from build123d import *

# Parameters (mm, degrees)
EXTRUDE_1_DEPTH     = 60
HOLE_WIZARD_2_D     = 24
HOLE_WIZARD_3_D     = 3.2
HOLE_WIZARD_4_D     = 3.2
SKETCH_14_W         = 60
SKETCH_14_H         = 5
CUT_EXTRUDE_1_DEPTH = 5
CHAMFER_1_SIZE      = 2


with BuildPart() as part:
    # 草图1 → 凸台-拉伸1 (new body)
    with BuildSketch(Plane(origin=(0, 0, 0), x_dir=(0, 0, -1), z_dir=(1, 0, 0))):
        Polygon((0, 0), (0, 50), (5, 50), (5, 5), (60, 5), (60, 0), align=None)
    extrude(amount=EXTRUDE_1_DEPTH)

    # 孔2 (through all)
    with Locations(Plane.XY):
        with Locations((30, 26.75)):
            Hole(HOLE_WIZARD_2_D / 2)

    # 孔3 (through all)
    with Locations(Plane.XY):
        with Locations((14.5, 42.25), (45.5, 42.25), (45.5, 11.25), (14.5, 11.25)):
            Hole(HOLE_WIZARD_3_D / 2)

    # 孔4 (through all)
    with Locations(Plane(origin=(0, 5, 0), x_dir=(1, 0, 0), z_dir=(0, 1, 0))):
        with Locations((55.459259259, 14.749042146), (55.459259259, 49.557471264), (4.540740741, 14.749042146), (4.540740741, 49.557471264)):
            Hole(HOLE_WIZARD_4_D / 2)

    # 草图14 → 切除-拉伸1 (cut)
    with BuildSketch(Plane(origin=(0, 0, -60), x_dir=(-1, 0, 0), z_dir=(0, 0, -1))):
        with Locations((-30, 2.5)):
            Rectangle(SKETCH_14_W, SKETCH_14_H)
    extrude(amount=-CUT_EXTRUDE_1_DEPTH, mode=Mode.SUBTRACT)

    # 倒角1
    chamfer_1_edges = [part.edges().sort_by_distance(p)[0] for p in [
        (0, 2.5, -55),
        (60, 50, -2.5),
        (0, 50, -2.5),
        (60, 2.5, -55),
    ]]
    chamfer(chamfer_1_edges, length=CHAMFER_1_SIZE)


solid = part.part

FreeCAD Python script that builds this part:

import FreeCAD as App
import Part
import Sketcher
Q = App.Units.Quantity


def edges_at(feature, points):
    """Names of the edges that pass closest to the given points."""
    edges = feature.Shape.Edges
    near = lambda p: min(range(len(edges)), key=lambda i: edges[i].distToShape(Part.Vertex(*p))[0])
    return sorted({f"Edge{near(p) + 1}" for p in points})

doc = App.newDocument("Part")
body = doc.addObject("PartDesign::Body", "Body")

sketch1 = doc.addObject("Sketcher::SketchObject", "Sketch")
body.addObject(sketch1)
sketch1.AttachmentSupport = (doc.YZ_Plane, [""])
sketch1.MapMode = "FlatFace"
sketch1.addGeometry([
    Part.LineSegment(App.Vector(50, 0, 0), App.Vector(0, 0, 0)),
    Part.LineSegment(App.Vector(0, 0, 0), App.Vector(0, -60, 0)),
    Part.LineSegment(App.Vector(0, -60, 0), App.Vector(5, -60, 0)),
    Part.LineSegment(App.Vector(5, -60, 0), App.Vector(5, -5, 0)),
    Part.LineSegment(App.Vector(5, -5, 0), App.Vector(50, -5, 0)),
    Part.LineSegment(App.Vector(50, -5, 0), App.Vector(50, 0, 0)),
], False)
sketch1.addConstraint([
    Sketcher.Constraint("Coincident", 0, 2, 1, 1),
    Sketcher.Constraint("Coincident", 1, 2, 2, 1),
    Sketcher.Constraint("Coincident", 2, 2, 3, 1),
    Sketcher.Constraint("Coincident", 3, 2, 4, 1),
    Sketcher.Constraint("Coincident", 4, 2, 5, 1),
    Sketcher.Constraint("Coincident", 5, 2, 0, 1),
    Sketcher.Constraint("Horizontal", 0),
    Sketcher.Constraint("Vertical", 1),
    Sketcher.Constraint("Horizontal", 2),
    Sketcher.Constraint("Vertical", 3),
    Sketcher.Constraint("Horizontal", 4),
    Sketcher.Constraint("Vertical", 5),
    Sketcher.Constraint("Coincident", 0, 2, -1, 1),
    Sketcher.Constraint("Equal", 2, 5),
    Sketcher.Constraint("DistanceX", 0, 2, 0, 1, Q("50 mm")),
    Sketcher.Constraint("DistanceX", 2, 1, 2, 2, Q("5 mm")),
    Sketcher.Constraint("DistanceY", 1, 2, 1, 1, Q("60 mm")),
])
pad1 = doc.addObject("PartDesign::Pad", "Pad")
body.addObject(pad1)
pad1.Profile = sketch1
pad1.Length = 60

sketch2 = doc.addObject("Sketcher::SketchObject", "Sketch001")
body.addObject(sketch2)
sketch2.AttachmentSupport = (doc.XY_Plane, [""])
sketch2.MapMode = "FlatFace"
sketch2.addGeometry(Part.Circle(App.Vector(30, 27, 0), App.Vector(0, 0, 1), 12), False)
sketch2.addConstraint([
    Sketcher.Constraint("Diameter", 0, Q("24 mm")),
    Sketcher.Constraint("DistanceX", -1, 1, 0, 3, Q("30 mm")),
    Sketcher.Constraint("DistanceY", -1, 1, 0, 3, Q("26.75 mm")),
])
doc.recompute()
hole = doc.addObject("PartDesign::Hole", "Hole")
body.addObject(hole)
hole.Profile = sketch2
hole.ThreadType = "None"
hole.Diameter = 24
hole.DepthType = "ThroughAll"

sketch3 = doc.addObject("Sketcher::SketchObject", "Sketch002")
body.addObject(sketch3)
sketch3.AttachmentSupport = (doc.XY_Plane, [""])
sketch3.MapMode = "FlatFace"
sketch3.addGeometry([
    Part.Circle(App.Vector(14.5, 42.2, 0), App.Vector(0, 0, 1), 1.6),
    Part.Circle(App.Vector(45.5, 42.2, 0), App.Vector(0, 0, 1), 1.6),
    Part.Circle(App.Vector(45.5, 11.2, 0), App.Vector(0, 0, 1), 1.6),
    Part.Circle(App.Vector(14.5, 11.2, 0), App.Vector(0, 0, 1), 1.6),
], False)
sketch3.addConstraint([
    Sketcher.Constraint("Equal", 0, 1),
    Sketcher.Constraint("Equal", 1, 2),
    Sketcher.Constraint("Equal", 2, 3),
    Sketcher.Constraint("Horizontal", 0, 3, 1, 3),
    Sketcher.Constraint("Horizontal", 2, 3, 3, 3),
    Sketcher.Constraint("Vertical", 1, 3, 2, 3),
    Sketcher.Constraint("Vertical", 0, 3, 3, 3),
    Sketcher.Constraint("Diameter", 0, Q("3.2 mm")),
    Sketcher.Constraint("DistanceX", 0, 3, 1, 3, Q("31 mm")),
    Sketcher.Constraint("DistanceY", 2, 3, 1, 3, Q("31 mm")),
    Sketcher.Constraint("DistanceX", -1, 1, 0, 3, Q("14.5 mm")),
    Sketcher.Constraint("DistanceY", -1, 1, 0, 3, Q("42.25 mm")),
])
doc.recompute()
hole2 = doc.addObject("PartDesign::Hole", "Hole001")
body.addObject(hole2)
hole2.Profile = sketch3
hole2.ThreadType = "None"
hole2.Diameter = 3.2
hole2.DepthType = "ThroughAll"

sketch4 = doc.addObject("Sketcher::SketchObject", "Sketch003")
body.addObject(sketch4)
sketch4.AttachmentSupport = (doc.XZ_Plane, [""])
sketch4.MapMode = "FlatFace"
sketch4.AttachmentOffset = App.Placement(App.Vector(0, 0, -5), App.Rotation())
sketch4.addGeometry([
    Part.Circle(App.Vector(55.5, -14.7, 0), App.Vector(0, 0, 1), 1.6),
    Part.Circle(App.Vector(55.5, -49.6, 0), App.Vector(0, 0, 1), 1.6),
    Part.Circle(App.Vector(4.5, -14.7, 0), App.Vector(0, 0, 1), 1.6),
    Part.Circle(App.Vector(4.5, -49.6, 0), App.Vector(0, 0, 1), 1.6),
], False)
sketch4.addConstraint([
    Sketcher.Constraint("Equal", 0, 1),
    Sketcher.Constraint("Equal", 1, 2),
    Sketcher.Constraint("Equal", 2, 3),
    Sketcher.Constraint("Horizontal", 0, 3, 2, 3),
    Sketcher.Constraint("Horizontal", 1, 3, 3, 3),
    Sketcher.Constraint("Vertical", 0, 3, 1, 3),
    Sketcher.Constraint("Vertical", 2, 3, 3, 3),
    Sketcher.Constraint("Diameter", 0, Q("3.2 mm")),
    Sketcher.Constraint("DistanceX", -1, 1, 0, 3, Q("55.459259 mm")),
    Sketcher.Constraint("DistanceY", 1, 3, -1, 1, Q("49.557471 mm")),
    Sketcher.Constraint("DistanceX", -1, 1, 2, 3, Q("4.540741 mm")),
    Sketcher.Constraint("DistanceY", 1, 3, 0, 3, Q("34.808429 mm")),
])
doc.recompute()
hole3 = doc.addObject("PartDesign::Hole", "Hole002")
body.addObject(hole3)
hole3.Profile = sketch4
hole3.ThreadType = "None"
hole3.Diameter = 3.2
hole3.DepthType = "ThroughAll"
hole3.Reversed = True

sketch5 = doc.addObject("Sketcher::SketchObject", "Sketch004")
body.addObject(sketch5)
sketch5.AttachmentSupport = (doc.XY_Plane, [""])
sketch5.MapMode = "FlatFace"
sketch5.AttachmentOffset = App.Placement(App.Vector(0, 0, -60), App.Rotation())
sketch5.addGeometry([
    Part.LineSegment(App.Vector(60, 5, 0), App.Vector(60, 0, 0)),
    Part.LineSegment(App.Vector(60, 0, 0), App.Vector(0, 0, 0)),
    Part.LineSegment(App.Vector(0, 0, 0), App.Vector(0, 5, 0)),
    Part.LineSegment(App.Vector(0, 5, 0), App.Vector(60, 5, 0)),
], False)
sketch5.addConstraint([
    Sketcher.Constraint("Coincident", 0, 2, 1, 1),
    Sketcher.Constraint("Coincident", 1, 2, 2, 1),
    Sketcher.Constraint("Coincident", 2, 2, 3, 1),
    Sketcher.Constraint("Coincident", 3, 2, 0, 1),
    Sketcher.Constraint("Vertical", 0),
    Sketcher.Constraint("Horizontal", 1),
    Sketcher.Constraint("Vertical", 2),
    Sketcher.Constraint("Horizontal", 3),
    Sketcher.Constraint("Coincident", 1, 2, -1, 1),
    Sketcher.Constraint("DistanceX", 1, 2, 1, 1, Q("60 mm")),
    Sketcher.Constraint("DistanceY", 0, 2, 0, 1, Q("5 mm")),
])
pocket1 = doc.addObject("PartDesign::Pocket", "Pocket")
body.addObject(pocket1)
pocket1.Profile = sketch5
pocket1.Length = 5
pocket1.Reversed = True
doc.recompute()

chamfer = doc.addObject("PartDesign::Chamfer", "Chamfer")
body.addObject(chamfer)
chamfer.Base = (pocket1, edges_at(pocket1, [
    (0, 2.5, -55),
    (60, 50, -2.5),
    (0, 50, -2.5),
    (60, 2.5, -55),
]))
chamfer.Size = 2

doc.recompute()
